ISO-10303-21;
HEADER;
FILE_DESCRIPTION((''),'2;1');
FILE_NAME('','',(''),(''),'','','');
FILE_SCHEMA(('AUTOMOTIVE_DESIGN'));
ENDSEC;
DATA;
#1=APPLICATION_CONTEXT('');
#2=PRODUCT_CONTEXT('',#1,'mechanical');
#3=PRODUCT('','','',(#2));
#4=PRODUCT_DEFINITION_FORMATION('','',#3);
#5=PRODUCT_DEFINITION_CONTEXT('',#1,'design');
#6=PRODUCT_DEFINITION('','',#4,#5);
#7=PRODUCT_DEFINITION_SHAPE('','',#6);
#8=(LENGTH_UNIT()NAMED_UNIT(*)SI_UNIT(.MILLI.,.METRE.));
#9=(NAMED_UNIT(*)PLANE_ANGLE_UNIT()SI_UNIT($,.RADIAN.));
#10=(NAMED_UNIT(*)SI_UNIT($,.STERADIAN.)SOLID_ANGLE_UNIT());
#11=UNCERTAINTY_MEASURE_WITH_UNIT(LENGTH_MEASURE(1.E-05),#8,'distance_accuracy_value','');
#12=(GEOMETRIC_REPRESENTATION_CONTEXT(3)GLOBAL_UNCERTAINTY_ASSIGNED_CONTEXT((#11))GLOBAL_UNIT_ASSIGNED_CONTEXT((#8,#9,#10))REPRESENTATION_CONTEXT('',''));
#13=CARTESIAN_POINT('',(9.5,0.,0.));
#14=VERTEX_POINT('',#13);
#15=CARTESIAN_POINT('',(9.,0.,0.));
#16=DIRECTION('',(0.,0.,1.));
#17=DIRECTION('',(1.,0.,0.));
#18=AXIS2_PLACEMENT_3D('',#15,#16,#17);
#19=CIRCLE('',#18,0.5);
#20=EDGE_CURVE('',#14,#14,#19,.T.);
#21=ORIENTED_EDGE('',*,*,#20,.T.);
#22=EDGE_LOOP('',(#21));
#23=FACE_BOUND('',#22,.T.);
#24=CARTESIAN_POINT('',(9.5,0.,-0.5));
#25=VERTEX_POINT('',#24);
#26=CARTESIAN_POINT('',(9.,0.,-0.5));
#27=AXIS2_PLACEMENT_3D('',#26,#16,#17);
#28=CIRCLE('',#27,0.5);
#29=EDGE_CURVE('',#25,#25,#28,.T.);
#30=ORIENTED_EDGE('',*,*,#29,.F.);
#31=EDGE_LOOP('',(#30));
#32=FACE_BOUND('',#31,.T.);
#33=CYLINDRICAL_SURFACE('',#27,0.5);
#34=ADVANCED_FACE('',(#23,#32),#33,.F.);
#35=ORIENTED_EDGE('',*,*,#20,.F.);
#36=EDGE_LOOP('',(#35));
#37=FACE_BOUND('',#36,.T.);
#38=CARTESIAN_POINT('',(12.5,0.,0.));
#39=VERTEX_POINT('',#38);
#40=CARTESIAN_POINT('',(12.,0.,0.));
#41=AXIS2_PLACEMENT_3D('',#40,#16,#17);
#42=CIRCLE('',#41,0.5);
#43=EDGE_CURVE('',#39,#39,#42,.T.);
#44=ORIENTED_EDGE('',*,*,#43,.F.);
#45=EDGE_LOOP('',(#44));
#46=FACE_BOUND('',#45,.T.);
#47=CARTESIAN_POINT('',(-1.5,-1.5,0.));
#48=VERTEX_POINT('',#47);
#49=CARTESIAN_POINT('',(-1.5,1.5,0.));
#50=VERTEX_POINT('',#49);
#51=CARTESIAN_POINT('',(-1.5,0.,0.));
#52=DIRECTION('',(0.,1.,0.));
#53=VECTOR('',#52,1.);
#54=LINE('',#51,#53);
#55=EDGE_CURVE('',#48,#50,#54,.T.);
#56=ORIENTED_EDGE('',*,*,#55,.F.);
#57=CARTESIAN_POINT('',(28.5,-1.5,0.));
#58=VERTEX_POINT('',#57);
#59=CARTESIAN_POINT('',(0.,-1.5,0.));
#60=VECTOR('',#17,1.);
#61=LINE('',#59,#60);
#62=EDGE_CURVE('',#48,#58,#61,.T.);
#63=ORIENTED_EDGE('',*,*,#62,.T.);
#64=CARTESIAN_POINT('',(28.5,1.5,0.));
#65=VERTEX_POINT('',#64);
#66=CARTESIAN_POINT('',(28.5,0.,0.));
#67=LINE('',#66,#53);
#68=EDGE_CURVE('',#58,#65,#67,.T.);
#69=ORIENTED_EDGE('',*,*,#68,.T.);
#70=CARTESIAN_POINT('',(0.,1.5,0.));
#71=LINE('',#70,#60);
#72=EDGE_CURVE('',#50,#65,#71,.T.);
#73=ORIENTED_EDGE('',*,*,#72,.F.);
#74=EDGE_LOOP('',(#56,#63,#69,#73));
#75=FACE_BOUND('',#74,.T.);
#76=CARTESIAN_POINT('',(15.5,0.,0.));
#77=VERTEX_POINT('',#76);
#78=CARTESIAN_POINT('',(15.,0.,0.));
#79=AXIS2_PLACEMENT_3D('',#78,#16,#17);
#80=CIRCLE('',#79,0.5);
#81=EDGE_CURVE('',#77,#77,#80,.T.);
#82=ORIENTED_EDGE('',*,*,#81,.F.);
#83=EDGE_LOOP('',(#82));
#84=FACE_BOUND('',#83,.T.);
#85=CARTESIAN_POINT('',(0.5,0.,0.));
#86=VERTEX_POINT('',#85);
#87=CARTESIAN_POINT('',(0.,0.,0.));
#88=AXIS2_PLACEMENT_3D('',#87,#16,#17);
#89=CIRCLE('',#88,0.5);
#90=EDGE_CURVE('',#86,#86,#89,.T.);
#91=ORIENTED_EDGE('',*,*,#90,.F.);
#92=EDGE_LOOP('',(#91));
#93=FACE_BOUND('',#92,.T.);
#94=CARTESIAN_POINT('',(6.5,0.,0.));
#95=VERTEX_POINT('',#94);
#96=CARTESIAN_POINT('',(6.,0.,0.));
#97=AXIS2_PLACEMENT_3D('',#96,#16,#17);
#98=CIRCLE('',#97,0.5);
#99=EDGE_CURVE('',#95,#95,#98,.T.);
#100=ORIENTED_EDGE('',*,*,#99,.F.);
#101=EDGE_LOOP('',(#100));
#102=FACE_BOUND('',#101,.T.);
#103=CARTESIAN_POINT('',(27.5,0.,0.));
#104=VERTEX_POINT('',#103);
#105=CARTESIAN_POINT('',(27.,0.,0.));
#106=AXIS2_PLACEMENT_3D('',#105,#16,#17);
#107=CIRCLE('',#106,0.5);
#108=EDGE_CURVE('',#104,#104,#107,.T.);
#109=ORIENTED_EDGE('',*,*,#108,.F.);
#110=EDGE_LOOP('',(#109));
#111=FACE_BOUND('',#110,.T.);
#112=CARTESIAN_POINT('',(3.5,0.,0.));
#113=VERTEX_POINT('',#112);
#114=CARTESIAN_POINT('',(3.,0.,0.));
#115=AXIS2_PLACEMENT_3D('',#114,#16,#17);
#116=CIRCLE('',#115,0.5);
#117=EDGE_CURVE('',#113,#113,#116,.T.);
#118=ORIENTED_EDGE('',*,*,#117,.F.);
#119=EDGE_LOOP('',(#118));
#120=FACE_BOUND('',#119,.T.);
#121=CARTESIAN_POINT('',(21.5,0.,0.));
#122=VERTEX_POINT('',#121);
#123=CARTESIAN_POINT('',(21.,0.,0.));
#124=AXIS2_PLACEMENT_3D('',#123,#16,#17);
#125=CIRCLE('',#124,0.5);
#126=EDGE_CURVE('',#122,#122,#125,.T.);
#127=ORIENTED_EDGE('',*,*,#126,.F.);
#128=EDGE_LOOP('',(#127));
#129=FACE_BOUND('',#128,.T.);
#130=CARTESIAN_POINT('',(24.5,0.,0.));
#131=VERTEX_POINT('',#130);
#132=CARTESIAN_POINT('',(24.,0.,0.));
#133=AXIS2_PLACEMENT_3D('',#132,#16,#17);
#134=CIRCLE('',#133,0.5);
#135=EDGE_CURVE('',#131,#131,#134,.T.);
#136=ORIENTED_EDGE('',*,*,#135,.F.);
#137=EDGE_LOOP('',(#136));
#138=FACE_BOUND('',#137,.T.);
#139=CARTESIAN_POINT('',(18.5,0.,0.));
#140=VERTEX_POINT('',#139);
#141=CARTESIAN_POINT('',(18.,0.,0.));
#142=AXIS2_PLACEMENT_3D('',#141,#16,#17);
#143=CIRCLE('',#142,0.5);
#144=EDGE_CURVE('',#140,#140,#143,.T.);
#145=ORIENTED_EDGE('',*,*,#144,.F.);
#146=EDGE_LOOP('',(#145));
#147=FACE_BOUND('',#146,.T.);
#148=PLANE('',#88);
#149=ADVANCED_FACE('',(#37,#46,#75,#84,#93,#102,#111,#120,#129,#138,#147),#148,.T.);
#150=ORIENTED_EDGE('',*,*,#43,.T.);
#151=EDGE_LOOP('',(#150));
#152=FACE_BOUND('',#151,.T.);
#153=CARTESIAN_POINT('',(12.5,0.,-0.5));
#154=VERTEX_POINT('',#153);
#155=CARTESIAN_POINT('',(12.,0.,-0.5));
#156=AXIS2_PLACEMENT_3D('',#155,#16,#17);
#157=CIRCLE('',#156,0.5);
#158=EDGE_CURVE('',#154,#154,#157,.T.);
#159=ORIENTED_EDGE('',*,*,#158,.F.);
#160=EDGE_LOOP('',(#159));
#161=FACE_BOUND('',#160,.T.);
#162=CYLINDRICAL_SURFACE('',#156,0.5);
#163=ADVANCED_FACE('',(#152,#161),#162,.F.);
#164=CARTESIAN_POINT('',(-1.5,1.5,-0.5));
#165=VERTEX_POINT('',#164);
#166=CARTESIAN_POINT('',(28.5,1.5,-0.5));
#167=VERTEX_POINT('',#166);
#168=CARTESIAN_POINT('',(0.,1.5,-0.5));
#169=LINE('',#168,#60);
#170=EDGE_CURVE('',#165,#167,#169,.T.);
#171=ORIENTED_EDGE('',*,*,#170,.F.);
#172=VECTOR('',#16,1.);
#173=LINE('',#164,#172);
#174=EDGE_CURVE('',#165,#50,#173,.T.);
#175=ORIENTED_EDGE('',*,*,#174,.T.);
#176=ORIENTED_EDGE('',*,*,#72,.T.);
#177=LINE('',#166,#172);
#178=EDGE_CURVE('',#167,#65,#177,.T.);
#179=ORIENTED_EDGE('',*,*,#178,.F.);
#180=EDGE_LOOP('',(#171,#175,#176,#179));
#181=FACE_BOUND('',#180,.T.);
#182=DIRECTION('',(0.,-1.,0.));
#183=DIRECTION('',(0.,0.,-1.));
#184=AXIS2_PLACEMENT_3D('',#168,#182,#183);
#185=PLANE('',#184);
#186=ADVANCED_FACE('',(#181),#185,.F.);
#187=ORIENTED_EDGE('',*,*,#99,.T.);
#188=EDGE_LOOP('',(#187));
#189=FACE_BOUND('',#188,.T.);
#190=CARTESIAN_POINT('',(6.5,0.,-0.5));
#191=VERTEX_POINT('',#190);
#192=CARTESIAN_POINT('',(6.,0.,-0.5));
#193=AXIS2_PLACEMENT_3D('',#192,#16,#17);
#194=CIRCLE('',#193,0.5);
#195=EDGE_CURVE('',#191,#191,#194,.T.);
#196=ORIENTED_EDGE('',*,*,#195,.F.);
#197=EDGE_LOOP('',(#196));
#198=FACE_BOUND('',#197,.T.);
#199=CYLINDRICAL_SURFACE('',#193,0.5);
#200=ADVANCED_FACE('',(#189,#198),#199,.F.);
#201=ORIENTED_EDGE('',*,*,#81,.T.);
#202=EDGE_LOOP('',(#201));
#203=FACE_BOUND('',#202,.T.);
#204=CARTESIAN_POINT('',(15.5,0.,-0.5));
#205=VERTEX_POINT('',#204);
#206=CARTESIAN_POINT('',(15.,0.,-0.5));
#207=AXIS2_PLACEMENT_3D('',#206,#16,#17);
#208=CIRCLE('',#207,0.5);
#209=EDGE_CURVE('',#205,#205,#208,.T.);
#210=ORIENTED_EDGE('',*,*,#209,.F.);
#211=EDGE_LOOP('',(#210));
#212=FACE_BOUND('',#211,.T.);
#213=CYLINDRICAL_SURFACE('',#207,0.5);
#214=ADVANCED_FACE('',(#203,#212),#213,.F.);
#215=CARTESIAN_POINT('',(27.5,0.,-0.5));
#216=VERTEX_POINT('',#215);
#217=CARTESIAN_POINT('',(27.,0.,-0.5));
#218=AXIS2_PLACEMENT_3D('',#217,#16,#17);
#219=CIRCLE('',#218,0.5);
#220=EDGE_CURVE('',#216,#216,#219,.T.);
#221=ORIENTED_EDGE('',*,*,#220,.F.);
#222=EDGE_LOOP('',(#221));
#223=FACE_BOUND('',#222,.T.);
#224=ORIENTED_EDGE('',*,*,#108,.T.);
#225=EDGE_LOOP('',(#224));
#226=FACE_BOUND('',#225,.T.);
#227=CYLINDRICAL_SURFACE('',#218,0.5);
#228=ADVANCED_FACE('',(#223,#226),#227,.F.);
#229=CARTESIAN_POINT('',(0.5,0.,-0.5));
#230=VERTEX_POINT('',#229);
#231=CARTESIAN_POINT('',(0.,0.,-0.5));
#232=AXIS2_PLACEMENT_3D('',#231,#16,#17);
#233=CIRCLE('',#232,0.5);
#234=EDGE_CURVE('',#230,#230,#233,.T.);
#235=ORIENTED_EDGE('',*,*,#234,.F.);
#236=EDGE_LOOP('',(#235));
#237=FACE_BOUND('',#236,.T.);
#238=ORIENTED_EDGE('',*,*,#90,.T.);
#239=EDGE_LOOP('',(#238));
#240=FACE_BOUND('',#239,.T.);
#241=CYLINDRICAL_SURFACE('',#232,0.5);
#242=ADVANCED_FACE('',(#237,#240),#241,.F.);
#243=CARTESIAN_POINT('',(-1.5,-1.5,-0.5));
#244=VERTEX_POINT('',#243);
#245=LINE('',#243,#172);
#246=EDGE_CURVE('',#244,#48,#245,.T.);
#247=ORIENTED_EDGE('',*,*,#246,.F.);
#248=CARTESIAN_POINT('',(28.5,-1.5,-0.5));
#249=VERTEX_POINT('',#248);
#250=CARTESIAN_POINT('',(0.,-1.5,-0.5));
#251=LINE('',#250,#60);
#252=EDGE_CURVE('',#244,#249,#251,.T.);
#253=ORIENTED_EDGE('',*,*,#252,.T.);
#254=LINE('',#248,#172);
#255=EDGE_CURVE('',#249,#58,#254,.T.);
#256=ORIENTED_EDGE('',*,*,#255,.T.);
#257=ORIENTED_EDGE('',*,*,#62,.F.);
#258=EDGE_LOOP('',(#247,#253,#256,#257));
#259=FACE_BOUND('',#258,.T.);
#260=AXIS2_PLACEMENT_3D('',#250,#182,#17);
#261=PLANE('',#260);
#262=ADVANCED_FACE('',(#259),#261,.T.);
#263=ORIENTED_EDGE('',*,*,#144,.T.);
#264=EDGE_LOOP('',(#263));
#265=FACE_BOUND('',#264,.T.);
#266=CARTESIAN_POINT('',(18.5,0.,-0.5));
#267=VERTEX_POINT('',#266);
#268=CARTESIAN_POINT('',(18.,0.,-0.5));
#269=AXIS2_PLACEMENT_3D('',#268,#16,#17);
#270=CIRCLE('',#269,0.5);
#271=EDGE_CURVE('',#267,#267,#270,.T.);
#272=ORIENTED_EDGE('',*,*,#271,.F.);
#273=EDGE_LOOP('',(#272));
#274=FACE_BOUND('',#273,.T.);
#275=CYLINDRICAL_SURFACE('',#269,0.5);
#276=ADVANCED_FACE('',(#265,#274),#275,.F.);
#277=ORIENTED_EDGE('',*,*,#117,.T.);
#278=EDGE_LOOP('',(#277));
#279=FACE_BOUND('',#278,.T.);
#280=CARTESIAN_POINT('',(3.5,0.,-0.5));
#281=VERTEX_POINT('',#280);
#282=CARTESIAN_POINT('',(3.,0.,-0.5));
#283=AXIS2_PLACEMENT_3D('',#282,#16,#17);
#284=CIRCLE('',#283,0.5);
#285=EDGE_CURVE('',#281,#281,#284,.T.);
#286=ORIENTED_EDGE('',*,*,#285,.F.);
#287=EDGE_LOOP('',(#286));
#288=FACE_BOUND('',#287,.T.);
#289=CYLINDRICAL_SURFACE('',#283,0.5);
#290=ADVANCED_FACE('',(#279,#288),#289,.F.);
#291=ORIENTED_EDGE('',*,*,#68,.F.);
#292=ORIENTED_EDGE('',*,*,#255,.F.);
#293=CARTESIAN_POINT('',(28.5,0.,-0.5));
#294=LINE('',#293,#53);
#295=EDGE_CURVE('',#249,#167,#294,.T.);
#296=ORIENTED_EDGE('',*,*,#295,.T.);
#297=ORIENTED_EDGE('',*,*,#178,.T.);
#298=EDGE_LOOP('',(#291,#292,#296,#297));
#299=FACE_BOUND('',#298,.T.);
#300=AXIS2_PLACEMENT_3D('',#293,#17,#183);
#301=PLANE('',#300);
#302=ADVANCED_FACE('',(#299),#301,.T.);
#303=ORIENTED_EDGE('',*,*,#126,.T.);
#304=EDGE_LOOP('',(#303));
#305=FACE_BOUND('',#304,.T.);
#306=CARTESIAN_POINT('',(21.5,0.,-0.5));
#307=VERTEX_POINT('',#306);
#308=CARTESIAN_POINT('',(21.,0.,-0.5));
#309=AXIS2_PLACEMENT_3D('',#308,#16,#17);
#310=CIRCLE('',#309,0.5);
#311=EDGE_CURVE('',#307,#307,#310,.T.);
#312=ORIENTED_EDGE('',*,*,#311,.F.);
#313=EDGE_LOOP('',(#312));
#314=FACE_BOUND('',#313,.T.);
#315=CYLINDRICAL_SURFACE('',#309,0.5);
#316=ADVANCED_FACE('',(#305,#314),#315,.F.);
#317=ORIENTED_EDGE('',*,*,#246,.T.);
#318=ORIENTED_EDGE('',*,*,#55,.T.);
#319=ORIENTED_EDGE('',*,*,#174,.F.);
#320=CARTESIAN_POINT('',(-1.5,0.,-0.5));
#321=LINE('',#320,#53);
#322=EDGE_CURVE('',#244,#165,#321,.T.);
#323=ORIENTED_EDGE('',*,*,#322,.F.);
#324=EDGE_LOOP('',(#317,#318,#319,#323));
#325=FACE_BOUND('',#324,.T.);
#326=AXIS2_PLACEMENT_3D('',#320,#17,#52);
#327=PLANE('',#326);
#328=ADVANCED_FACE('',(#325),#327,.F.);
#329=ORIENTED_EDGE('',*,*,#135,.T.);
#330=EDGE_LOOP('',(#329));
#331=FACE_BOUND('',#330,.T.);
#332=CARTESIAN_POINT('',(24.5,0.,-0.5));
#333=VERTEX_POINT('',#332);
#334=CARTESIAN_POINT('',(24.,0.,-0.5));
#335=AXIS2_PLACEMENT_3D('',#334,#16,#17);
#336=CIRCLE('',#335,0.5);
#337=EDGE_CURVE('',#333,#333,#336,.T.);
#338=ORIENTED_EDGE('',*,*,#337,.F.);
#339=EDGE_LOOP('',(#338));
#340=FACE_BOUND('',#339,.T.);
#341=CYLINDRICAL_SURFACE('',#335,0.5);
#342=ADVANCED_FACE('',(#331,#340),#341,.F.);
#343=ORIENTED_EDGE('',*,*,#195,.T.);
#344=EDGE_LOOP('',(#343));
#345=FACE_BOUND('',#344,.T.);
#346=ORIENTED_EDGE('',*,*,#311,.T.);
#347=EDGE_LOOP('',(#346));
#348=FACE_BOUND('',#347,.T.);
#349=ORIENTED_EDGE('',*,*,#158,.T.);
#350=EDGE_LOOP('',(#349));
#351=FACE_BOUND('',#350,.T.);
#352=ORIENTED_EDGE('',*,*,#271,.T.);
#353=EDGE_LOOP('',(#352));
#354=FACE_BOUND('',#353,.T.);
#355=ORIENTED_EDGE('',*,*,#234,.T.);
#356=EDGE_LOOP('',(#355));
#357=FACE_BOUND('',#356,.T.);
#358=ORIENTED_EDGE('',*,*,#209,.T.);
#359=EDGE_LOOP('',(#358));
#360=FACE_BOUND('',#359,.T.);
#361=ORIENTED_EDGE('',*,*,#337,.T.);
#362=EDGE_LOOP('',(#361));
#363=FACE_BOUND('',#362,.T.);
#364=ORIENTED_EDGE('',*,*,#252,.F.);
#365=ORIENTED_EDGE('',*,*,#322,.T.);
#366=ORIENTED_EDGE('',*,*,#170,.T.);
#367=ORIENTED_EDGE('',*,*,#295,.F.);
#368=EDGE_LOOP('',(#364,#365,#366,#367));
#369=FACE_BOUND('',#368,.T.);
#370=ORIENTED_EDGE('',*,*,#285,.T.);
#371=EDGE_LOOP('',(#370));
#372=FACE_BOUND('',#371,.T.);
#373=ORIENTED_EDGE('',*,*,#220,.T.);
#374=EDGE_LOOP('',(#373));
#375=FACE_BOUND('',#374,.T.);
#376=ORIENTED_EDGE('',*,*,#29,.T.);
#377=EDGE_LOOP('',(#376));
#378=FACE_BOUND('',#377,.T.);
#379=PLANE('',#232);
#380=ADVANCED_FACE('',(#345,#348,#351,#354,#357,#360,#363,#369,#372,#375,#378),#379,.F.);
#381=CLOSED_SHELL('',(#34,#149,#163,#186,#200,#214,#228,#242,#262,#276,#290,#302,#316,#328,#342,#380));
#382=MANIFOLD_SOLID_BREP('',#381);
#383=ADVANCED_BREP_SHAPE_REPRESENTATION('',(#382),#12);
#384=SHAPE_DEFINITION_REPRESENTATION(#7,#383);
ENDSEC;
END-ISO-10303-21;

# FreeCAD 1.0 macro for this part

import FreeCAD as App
import Part
import Sketcher
from FreeCAD import Vector
Q = App.Units.Quantity

doc = App.newDocument("Part")
body = doc.addObject("PartDesign::Body", "Body")

# Sketch on XY plane
sketch1 = body.newObject("Sketcher::SketchObject", "Sketch")
sketch1.AttachmentSupport = (doc.getObject("XY_Plane"), [""])
sketch1.MapMode = "FlatFace"
sketch1.addGeometry([
    Part.LineSegment(Vector(-1.5, 1.5, 0), Vector(-1.5, -1.5, 0)),  # 0
    Part.LineSegment(Vector(-1.5, -1.5, 0), Vector(28.5, -1.5, 0)),  # 1
    Part.LineSegment(Vector(28.5, -1.5, 0), Vector(28.5, 1.5, 0)),  # 2
    Part.LineSegment(Vector(28.5, 1.5, 0), Vector(-1.5, 1.5, 0)),  # 3
    Part.Circle(Vector(0, 0, 0), Vector(0, 0, 1), 0.5),  # 4
    Part.Circle(Vector(3, 0, 0), Vector(0, 0, 1), 0.5),  # 5
    Part.Circle(Vector(6, 0, 0), Vector(0, 0, 1), 0.5),  # 6
    Part.Circle(Vector(9, 0, 0), Vector(0, 0, 1), 0.5),  # 7
    Part.Circle(Vector(12, 0, 0), Vector(0, 0, 1), 0.5),  # 8
    Part.Circle(Vector(15, 0, 0), Vector(0, 0, 1), 0.5),  # 9
    Part.Circle(Vector(18, 0, 0), Vector(0, 0, 1), 0.5),  # 10
    Part.Circle(Vector(21, 0, 0), Vector(0, 0, 1), 0.5),  # 11
    Part.Circle(Vector(24, 0, 0), Vector(0, 0, 1), 0.5),  # 12
    Part.Circle(Vector(27, 0, 0), Vector(0, 0, 1), 0.5),  # 13
], False)
sketch1.addConstraint([
    Sketcher.Constraint("Coincident", 0, 2, 1, 1),
    Sketcher.Constraint("Coincident", 1, 2, 2, 1),
    Sketcher.Constraint("Coincident", 2, 2, 3, 1),
    Sketcher.Constraint("Coincident", 3, 2, 0, 1),
    Sketcher.Constraint("Vertical", 0),
    Sketcher.Constraint("Horizontal", 1),
    Sketcher.Constraint("Vertical", 2),
    Sketcher.Constraint("Horizontal", 3),
    Sketcher.Constraint("Coincident", 4, 3, -1, 1),
    Sketcher.Constraint("Equal", 4, 5),
    Sketcher.Constraint("Equal", 5, 6),
    Sketcher.Constraint("Equal", 6, 7),
    Sketcher.Constraint("Equal", 7, 8),
    Sketcher.Constraint("Equal", 8, 9),
    Sketcher.Constraint("Equal", 9, 10),
    Sketcher.Constraint("Equal", 10, 11),
    Sketcher.Constraint("Equal", 11, 12),
    Sketcher.Constraint("Equal", 12, 13),
    Sketcher.Constraint("PointOnObject", 5, 3, -1),
    Sketcher.Constraint("PointOnObject", 6, 3, -1),
    Sketcher.Constraint("PointOnObject", 7, 3, -1),
    Sketcher.Constraint("PointOnObject", 8, 3, -1),
    Sketcher.Constraint("PointOnObject", 9, 3, -1),
    Sketcher.Constraint("PointOnObject", 10, 3, -1),
    Sketcher.Constraint("PointOnObject", 11, 3, -1),
    Sketcher.Constraint("PointOnObject", 12, 3, -1),
    Sketcher.Constraint("PointOnObject", 13, 3, -1),
    Sketcher.Constraint("Diameter", 4, Q("1 mm")),
    Sketcher.Constraint("DistanceX", 1, 1, 1, 2, Q("30 mm")),
    Sketcher.Constraint("DistanceY", 0, 2, 0, 1, Q("3 mm")),
    Sketcher.Constraint("DistanceX", -1, 1, 5, 3, Q("3 mm")),
    Sketcher.Constraint("DistanceX", -1, 1, 6, 3, Q("6 mm")),
    Sketcher.Constraint("DistanceX", -1, 1, 7, 3, Q("9 mm")),
    Sketcher.Constraint("DistanceX", -1, 1, 8, 3, Q("12 mm")),
    Sketcher.Constraint("DistanceX", -1, 1, 9, 3, Q("15 mm")),
    Sketcher.Constraint("DistanceX", -1, 1, 10, 3, Q("18 mm")),
    Sketcher.Constraint("DistanceX", -1, 1, 11, 3, Q("21 mm")),
    Sketcher.Constraint("DistanceX", -1, 1, 12, 3, Q("24 mm")),
    Sketcher.Constraint("DistanceX", -1, 1, 13, 3, Q("27 mm")),
    Sketcher.Constraint("DistanceX", 0, 2, -1, 1, Q("1.5 mm")),
    Sketcher.Constraint("DistanceY", 0, 2, -1, 1, Q("1.5 mm")),
])
pad1 = body.newObject("PartDesign::Pad", "Pad")
pad1.Profile = sketch1
pad1.Length = 0.5
pad1.Reversed = True

doc.recompute()
